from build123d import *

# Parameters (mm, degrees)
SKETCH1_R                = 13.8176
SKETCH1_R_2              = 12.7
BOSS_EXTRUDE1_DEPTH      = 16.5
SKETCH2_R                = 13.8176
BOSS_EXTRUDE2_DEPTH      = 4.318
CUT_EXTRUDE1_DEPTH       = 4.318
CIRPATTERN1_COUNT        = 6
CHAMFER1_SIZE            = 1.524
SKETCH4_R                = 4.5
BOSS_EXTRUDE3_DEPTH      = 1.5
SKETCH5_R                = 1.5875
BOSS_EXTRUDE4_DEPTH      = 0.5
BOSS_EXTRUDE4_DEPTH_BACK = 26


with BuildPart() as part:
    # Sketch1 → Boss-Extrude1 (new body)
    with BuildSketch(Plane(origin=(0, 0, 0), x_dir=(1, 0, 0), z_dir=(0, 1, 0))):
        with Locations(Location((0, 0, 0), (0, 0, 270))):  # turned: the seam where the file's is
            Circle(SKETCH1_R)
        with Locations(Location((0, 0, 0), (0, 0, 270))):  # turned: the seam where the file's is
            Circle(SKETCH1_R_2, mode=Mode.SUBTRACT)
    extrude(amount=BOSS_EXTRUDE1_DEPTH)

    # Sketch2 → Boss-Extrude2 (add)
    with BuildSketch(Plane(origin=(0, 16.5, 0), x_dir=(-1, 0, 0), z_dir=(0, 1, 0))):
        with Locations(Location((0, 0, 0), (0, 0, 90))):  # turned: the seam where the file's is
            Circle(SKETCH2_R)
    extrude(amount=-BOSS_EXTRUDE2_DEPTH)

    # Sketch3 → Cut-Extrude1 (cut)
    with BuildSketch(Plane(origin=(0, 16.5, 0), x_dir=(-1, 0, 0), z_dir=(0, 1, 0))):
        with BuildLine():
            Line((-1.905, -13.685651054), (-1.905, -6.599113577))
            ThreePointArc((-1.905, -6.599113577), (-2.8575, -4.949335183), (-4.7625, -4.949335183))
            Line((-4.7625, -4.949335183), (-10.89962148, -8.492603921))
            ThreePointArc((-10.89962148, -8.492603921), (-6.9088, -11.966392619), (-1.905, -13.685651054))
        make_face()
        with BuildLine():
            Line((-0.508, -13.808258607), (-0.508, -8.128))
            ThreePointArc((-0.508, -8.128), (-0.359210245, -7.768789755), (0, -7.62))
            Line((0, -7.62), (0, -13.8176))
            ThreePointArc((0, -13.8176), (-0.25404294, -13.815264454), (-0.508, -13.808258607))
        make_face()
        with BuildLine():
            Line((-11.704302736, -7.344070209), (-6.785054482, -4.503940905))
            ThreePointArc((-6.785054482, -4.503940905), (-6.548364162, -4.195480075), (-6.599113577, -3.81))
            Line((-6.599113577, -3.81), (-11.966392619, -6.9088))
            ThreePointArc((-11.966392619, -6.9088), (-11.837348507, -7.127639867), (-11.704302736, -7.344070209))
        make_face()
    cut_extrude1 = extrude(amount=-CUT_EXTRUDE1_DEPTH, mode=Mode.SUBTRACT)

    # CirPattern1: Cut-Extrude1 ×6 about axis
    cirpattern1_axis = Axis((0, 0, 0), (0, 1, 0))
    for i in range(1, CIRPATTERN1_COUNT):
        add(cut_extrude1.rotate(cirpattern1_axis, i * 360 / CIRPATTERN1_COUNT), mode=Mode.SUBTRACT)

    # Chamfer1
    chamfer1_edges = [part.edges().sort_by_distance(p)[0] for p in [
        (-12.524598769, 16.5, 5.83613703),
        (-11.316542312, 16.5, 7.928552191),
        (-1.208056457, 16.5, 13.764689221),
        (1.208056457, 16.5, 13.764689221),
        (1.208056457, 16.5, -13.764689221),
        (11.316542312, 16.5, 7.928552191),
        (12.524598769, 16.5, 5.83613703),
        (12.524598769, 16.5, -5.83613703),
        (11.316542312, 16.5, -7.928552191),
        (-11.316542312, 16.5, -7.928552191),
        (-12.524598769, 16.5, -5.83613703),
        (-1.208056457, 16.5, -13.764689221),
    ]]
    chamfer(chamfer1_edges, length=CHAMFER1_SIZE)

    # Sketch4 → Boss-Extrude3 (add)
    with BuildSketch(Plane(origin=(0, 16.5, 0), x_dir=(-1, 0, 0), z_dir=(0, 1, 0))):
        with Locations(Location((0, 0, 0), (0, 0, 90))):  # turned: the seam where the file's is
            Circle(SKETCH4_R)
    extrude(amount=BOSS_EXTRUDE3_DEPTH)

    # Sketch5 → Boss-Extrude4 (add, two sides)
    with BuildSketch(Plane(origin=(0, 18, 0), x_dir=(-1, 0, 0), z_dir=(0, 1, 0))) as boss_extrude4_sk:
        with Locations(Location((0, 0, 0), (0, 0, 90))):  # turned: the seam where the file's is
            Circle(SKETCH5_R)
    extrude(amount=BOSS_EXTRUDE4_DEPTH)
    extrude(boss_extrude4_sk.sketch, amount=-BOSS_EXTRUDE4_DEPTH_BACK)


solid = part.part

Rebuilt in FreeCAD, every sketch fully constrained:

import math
import FreeCAD as App
import Part
import Sketcher
Q = App.Units.Quantity


def edges_at(feature, points):
    """Names of the edges that pass closest to the given points."""
    edges = feature.Shape.Edges
    near = lambda p: min(range(len(edges)), key=lambda i: edges[i].distToShape(Part.Vertex(*p))[0])
    return sorted({f"Edge{near(p) + 1}" for p in points})

doc = App.newDocument("Part")
body = doc.addObject("PartDesign::Body", "Body")

# Sketch on XZ plane
sketch1 = body.newObject("Sketcher::SketchObject", "Sketch")
sketch1.AttachmentSupport = (doc.getObject("XZ_Plane"), [""])
sketch1.MapMode = "FlatFace"
sketch1.addGeometry([
    Part.Circle(App.Vector(0, 0, 0), App.Vector(0, 0, 1), 14),
    Part.Circle(App.Vector(0, 0, 0), App.Vector(0, 0, 1), 13),
], False)
sketch1.addConstraint([
    Sketcher.Constraint("Coincident", 0, 3, -1, 1),
    Sketcher.Constraint("Coincident", 1, 3, -1, 1),
    Sketcher.Constraint("Diameter", 1, Q("1 in")),
    Sketcher.Constraint("Diameter", 0, Q("1.088 in")),
])
pad1 = body.newObject("PartDesign::Pad", "Pad")
pad1.Profile = sketch1
pad1.Length = 16.5
pad1.Reversed = True

# Sketch on XZ plane
sketch2 = body.newObject("Sketcher::SketchObject", "Sketch001")
sketch2.AttachmentSupport = (doc.getObject("XZ_Plane"), [""])
sketch2.MapMode = "FlatFace"
sketch2.AttachmentOffset = App.Placement(App.Vector(0, 0, -16.5), App.Rotation())
sketch2.addGeometry(Part.Circle(App.Vector(0, 0, 0), App.Vector(0, 0, 1), 14), False)
sketch2.addConstraint([
    Sketcher.Constraint("Coincident", 0, 3, -1, 1),
    Sketcher.Constraint("Diameter", 0, Q("1.088 in")),
])
pad2 = body.newObject("PartDesign::Pad", "Pad001")
pad2.Profile = sketch2
pad2.Length = Q("0.17 in")

# Sketch on XZ plane
sketch3 = body.newObject("Sketcher::SketchObject", "Sketch002")
sketch3.AttachmentSupport = (doc.getObject("XZ_Plane"), [""])
sketch3.MapMode = "FlatFace"
sketch3.AttachmentOffset = App.Placement(App.Vector(0, 0, -16.5), App.Rotation())
sketch3.addGeometry([
    Part.LineSegment(App.Vector(1.9, -13.7, 0), App.Vector(1.9, -6.6, 0)),  # 0
    Part.ArcOfCircle(Part.Circle(App.Vector(3.8, -6.6, 0), App.Vector(0, 0, 1), 1.9), math.radians(60), math.radians(180)),  # 1
    Part.LineSegment(App.Vector(4.8, -4.9, 0), App.Vector(10.9, -8.5, 0)),  # 2
    Part.ArcOfCircle(Part.Circle(App.Vector(0, 0, 0), App.Vector(0, 0, 1), 13.8), math.radians(-82), math.radians(-38)),  # 3
    Part.LineSegment(App.Vector(0.5, -8.1, 0), App.Vector(0.5, -13.8, 0)),  # 4
    Part.ArcOfCircle(Part.Circle(App.Vector(0, 0, 0), App.Vector(0, 0, 1), 13.8), math.radians(-90), math.radians(-87.89)),  # 5
    Part.LineSegment(App.Vector(0, -13.8, 0), App.Vector(0, -7.6, 0)),  # 6
    Part.ArcOfCircle(Part.Circle(App.Vector(0, -8.1, 0), App.Vector(0, 0, 1), 0.5), math.radians(0), math.radians(90)),  # 7
    Part.LineSegment(App.Vector(11.7, -7.3, 0), App.Vector(6.8, -4.5, 0)),  # 8
    Part.ArcOfCircle(Part.Circle(App.Vector(7, -4.1, 0), App.Vector(0, 0, 1), 0.5), math.radians(150), math.radians(240)),  # 9
    Part.LineSegment(App.Vector(6.6, -3.8, 0), App.Vector(12, -6.9, 0)),  # 10
    Part.ArcOfCircle(Part.Circle(App.Vector(0, 0, 0), App.Vector(0, 0, 1), 13.8), math.radians(-32.11), math.radians(-30)),  # 11
], False)
sketch3.addConstraint([
    Sketcher.Constraint("Tangent", 0, 2, 1, 2),
    Sketcher.Constraint("Tangent", 1, 1, 2, 1),
    Sketcher.Constraint("Coincident", 2, 2, 3, 2),
    Sketcher.Constraint("Coincident", 3, 1, 0, 1),
    Sketcher.Constraint("Coincident", 4, 2, 5, 2),
    Sketcher.Constraint("Coincident", 5, 1, 6, 1),
    Sketcher.Constraint("Coincident", 6, 2, 7, 2),
    Sketcher.Constraint("Tangent", 7, 1, 4, 1),
    Sketcher.Constraint("Tangent", 8, 2, 9, 2),
    Sketcher.Constraint("Coincident", 9, 1, 10, 1),
    Sketcher.Constraint("Coincident", 10, 2, 11, 2),
    Sketcher.Constraint("Coincident", 11, 1, 8, 1),
    Sketcher.Constraint("Vertical", 0),
    Sketcher.Constraint("Vertical", 4),
    Sketcher.Constraint("Vertical", 6),
    Sketcher.Constraint("Coincident", 3, 3, -1, 1),
    Sketcher.Constraint("Coincident", 5, 3, -1, 1),
    Sketcher.Constraint("Coincident", 11, 3, -1, 1),
    Sketcher.Constraint("Equal", 7, 9),
    Sketcher.Constraint("Equal", 5, 11),
    Sketcher.Constraint("PointOnObject", 7, 3, -2),
    Sketcher.Constraint("PointOnObject", 5, 1, -2),
    Sketcher.Constraint("Parallel", 2, 8),
    Sketcher.Constraint("Parallel", 8, 10),
    Sketcher.Constraint("Radius", 7, Q("0.02 in")),
    Sketcher.Constraint("Angle", 2, Q("-30 deg")),
    Sketcher.Constraint("Radius", 1, Q("0.075 in")),
    Sketcher.Constraint("Radius", 3, Q("0.544 in")),
    Sketcher.Constraint("Radius", 5, Q("0.5440001 in")),
    Sketcher.Constraint("DistanceY", 6, 2, -1, 1, Q("0.3 in")),
    Sketcher.Constraint("DistanceX", -1, 1, 1, 3, Q("0.15 in")),
    Sketcher.Constraint("DistanceY", 9, 3, -1, 1, Q("0.16 in")),
    Sketcher.Constraint("DistanceY", 9, 1, -1, 1, Q("0.15 in")),
    Sketcher.Constraint("Distance", 10, Q("0.244 in")),
    Sketcher.Constraint("DistanceY", 0, 1, 0, 2, Q("7.086537 mm")),
])
pocket1 = body.newObject("PartDesign::Pocket", "Pocket")
pocket1.Profile = sketch3
pocket1.Length = Q("0.17 in")
pocket1.Reversed = True
doc.recompute()

polarpattern = body.newObject("PartDesign::PolarPattern", "PolarPattern")
polarpattern.Originals = [pocket1]
polarpattern.Axis = (doc.getObject("Y_Axis"), [""])
polarpattern.Angle = 360
polarpattern.Occurrences = 6
body.Tip = polarpattern
doc.recompute()

chamfer = body.newObject("PartDesign::Chamfer", "Chamfer")
chamfer.Base = (polarpattern, edges_at(polarpattern, [
    (-12.525, 16.5, 5.836),
    (-11.317, 16.5, 7.929),
    (-1.208, 16.5, 13.765),
    (1.208, 16.5, 13.765),
    (1.208, 16.5, -13.765),
    (11.317, 16.5, 7.929),
    (12.525, 16.5, 5.836),
    (12.525, 16.5, -5.836),
    (11.317, 16.5, -7.929),
    (-11.317, 16.5, -7.929),
    (-12.525, 16.5, -5.836),
    (-1.208, 16.5, -13.765),
]))
chamfer.Size = Q("0.06 in")

# Sketch on XZ plane
sketch4 = body.newObject("Sketcher::SketchObject", "Sketch003")
sketch4.AttachmentSupport = (doc.getObject("XZ_Plane"), [""])
sketch4.MapMode = "FlatFace"
sketch4.AttachmentOffset = App.Placement(App.Vector(0, 0, -16.5), App.Rotation())
sketch4.addGeometry(Part.Circle(App.Vector(0, 0, 0), App.Vector(0, 0, 1), 4.5), False)
sketch4.addConstraint([
    Sketcher.Constraint("Coincident", 0, 3, -1, 1),
    Sketcher.Constraint("Diameter", 0, Q("9 mm")),
])
pad3 = body.newObject("PartDesign::Pad", "Pad002")
pad3.Profile = sketch4
pad3.Length = 1.5
pad3.Reversed = True

# Sketch on XZ plane
sketch5 = body.newObject("Sketcher::SketchObject", "Sketch004")
sketch5.AttachmentSupport = (doc.getObject("XZ_Plane"), [""])
sketch5.MapMode = "FlatFace"
sketch5.AttachmentOffset = App.Placement(App.Vector(0, 0, -18), App.Rotation())
sketch5.addGeometry(Part.Circle(App.Vector(0, 0, 0), App.Vector(0, 0, 1), 1.6), False)
sketch5.addConstraint([
    Sketcher.Constraint("Coincident", 0, 3, -1, 1),
    Sketcher.Constraint("Diameter", 0, Q("0.125 in")),
])
pad4 = body.newObject("PartDesign::Pad", "Pad003")
pad4.Profile = sketch5
pad4.Type = "TwoLengths"
pad4.Length = 0.5
pad4.Length2 = 26
pad4.Reversed = True

doc.recompute()
